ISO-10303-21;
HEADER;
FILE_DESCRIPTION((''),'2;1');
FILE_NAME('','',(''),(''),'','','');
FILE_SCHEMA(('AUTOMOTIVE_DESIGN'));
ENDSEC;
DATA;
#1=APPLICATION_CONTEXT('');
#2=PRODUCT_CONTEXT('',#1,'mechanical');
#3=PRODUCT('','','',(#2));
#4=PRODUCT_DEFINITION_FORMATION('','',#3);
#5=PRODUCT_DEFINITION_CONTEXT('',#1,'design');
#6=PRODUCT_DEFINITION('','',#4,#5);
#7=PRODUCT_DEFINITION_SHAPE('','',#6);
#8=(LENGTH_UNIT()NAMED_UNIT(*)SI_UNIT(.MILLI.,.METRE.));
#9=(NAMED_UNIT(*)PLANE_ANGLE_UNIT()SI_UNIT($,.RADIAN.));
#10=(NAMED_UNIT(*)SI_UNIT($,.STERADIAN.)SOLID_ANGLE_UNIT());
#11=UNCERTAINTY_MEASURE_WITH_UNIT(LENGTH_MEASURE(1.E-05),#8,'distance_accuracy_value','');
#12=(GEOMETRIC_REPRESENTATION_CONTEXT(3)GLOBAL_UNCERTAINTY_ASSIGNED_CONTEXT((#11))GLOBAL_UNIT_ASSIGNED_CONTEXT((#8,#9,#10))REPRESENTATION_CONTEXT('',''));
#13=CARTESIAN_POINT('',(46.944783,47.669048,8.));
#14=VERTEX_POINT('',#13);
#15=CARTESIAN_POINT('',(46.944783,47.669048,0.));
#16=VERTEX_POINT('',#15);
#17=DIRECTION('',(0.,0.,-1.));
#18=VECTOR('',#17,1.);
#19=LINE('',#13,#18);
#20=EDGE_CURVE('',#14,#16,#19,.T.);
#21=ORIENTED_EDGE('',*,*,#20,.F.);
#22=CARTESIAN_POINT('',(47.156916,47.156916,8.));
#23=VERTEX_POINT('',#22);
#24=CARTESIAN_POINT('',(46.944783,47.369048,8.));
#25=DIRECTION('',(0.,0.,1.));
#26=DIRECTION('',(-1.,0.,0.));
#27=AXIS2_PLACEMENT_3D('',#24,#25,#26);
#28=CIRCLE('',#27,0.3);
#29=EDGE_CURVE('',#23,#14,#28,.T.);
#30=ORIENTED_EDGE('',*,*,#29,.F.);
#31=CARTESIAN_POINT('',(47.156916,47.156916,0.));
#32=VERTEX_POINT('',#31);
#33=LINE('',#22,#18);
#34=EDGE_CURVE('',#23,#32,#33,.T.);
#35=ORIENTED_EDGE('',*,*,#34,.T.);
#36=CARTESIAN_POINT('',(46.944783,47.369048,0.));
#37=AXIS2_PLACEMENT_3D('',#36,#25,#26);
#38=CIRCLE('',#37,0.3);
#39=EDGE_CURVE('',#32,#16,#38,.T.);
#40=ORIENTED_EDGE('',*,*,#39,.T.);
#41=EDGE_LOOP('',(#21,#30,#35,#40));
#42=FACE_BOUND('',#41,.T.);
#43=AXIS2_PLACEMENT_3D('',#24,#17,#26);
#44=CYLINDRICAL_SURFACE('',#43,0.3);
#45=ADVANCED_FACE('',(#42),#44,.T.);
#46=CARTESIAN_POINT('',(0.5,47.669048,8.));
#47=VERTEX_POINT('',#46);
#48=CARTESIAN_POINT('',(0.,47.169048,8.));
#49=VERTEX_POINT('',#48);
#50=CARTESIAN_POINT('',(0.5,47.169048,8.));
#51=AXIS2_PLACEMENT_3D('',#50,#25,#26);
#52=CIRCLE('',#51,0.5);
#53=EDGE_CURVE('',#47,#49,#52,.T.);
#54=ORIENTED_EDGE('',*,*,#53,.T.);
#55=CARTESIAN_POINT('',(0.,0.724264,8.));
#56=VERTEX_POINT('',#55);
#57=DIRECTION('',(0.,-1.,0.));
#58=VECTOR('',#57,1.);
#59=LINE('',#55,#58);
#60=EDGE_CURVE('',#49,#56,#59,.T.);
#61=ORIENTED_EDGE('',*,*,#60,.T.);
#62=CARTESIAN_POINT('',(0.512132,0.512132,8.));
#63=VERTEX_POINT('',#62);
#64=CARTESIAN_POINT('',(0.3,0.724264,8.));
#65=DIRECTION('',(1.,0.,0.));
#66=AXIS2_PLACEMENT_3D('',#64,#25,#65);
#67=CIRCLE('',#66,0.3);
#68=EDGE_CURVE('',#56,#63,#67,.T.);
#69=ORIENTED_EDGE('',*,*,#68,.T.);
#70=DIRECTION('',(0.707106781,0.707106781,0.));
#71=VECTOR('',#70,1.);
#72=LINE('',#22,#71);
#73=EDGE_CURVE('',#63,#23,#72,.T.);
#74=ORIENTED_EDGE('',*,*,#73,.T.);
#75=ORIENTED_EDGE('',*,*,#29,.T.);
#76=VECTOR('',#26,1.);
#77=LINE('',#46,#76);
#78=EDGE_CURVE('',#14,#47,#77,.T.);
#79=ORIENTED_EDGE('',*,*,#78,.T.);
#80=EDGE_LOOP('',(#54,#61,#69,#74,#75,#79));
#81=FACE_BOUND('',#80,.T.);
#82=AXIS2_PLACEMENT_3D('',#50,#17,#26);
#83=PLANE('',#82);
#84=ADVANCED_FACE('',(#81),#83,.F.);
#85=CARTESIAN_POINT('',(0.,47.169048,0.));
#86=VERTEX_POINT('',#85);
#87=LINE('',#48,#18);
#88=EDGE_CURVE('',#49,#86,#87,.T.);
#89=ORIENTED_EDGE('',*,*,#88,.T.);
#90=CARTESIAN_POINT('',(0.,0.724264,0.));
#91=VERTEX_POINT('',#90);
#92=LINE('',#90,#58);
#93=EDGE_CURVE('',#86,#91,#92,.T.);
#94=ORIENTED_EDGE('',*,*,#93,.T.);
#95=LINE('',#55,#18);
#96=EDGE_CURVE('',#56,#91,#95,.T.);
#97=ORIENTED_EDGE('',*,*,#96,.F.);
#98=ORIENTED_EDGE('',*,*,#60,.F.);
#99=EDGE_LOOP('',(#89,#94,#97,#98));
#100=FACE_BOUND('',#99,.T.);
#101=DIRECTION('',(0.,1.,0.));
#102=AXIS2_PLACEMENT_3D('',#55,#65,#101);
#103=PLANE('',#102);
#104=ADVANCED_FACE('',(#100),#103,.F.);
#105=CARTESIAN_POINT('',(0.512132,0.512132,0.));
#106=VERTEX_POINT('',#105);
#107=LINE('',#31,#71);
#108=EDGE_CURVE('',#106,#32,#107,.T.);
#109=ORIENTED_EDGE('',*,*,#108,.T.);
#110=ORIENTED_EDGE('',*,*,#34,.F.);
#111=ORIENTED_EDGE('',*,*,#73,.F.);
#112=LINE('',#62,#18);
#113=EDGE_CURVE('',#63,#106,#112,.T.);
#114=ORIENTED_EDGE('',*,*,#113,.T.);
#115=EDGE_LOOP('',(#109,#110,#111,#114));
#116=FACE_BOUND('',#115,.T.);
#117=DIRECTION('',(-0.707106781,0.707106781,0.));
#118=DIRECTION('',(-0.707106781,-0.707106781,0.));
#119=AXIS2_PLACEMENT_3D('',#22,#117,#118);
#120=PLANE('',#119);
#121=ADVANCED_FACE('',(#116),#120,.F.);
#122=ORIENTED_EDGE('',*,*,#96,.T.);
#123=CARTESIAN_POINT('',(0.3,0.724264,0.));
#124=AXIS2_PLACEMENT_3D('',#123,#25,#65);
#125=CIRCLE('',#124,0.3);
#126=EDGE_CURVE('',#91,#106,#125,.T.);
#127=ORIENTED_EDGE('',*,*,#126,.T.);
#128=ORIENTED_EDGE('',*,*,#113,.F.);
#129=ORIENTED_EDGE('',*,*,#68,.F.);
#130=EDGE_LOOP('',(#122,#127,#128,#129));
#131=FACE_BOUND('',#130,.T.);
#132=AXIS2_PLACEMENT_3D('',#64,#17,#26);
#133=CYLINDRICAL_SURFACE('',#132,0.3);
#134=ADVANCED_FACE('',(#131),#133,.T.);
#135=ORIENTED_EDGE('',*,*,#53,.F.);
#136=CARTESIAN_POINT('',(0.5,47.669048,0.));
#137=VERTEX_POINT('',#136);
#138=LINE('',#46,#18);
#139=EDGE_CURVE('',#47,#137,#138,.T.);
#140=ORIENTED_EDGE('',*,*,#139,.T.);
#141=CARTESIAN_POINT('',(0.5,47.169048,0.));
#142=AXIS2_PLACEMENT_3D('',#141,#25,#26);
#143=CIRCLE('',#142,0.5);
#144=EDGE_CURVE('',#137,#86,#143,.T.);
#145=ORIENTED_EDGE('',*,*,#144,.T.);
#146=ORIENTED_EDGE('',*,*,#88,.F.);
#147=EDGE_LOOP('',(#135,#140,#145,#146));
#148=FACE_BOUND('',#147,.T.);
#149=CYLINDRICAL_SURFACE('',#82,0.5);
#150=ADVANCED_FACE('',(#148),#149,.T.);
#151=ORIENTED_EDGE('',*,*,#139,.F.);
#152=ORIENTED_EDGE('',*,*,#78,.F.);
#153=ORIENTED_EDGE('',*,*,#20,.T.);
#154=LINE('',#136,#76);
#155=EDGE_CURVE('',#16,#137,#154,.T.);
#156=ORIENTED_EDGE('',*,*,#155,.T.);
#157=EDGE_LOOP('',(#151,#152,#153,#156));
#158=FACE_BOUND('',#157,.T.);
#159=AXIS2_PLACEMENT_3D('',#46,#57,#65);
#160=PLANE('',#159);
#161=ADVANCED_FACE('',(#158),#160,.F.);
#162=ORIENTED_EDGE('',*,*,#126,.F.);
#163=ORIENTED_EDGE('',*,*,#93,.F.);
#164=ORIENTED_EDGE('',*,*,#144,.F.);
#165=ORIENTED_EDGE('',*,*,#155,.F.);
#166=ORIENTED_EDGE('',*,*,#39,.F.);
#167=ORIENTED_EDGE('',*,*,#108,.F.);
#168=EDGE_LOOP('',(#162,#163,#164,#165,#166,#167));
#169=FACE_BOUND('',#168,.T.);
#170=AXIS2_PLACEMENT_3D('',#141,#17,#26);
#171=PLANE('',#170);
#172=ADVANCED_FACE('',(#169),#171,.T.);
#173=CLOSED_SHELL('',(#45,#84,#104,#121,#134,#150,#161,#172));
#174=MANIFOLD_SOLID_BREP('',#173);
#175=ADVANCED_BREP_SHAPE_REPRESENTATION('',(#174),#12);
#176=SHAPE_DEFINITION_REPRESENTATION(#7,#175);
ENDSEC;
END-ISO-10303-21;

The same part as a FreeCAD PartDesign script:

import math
import FreeCAD as App
import Part
import Sketcher
from FreeCAD import Vector
Q = App.Units.Quantity

doc = App.newDocument("Part")
body = doc.addObject("PartDesign::Body", "Body")

# Sketch on XY plane
sketch1 = doc.addObject("Sketcher::SketchObject", "Sketch")
body.addObject(sketch1)
sketch1.AttachmentSupport = (doc.XY_Plane, [""])
sketch1.MapMode = "FlatFace"
sketch1.addGeometry(Part.LineSegment(Vector(0, 47.17, 0), Vector(0, 0.72, 0)), False)
sketch1.addGeometry(Part.ArcOfCircle(Part.Circle(Vector(0.3, 0.72, 0), Vector(0, 0, 1), 0.3), math.radians(180), math.radians(315)), False)
sketch1.addGeometry(Part.LineSegment(Vector(0.51, 0.51, 0), Vector(47.16, 47.16, 0)), False)
sketch1.addGeometry(Part.ArcOfCircle(Part.Circle(Vector(46.94, 47.37, 0), Vector(0, 0, 1), 0.3), math.radians(-45), math.radians(90)), False)
sketch1.addGeometry(Part.LineSegment(Vector(46.94, 47.67, 0), Vector(0.5, 47.67, 0)), False)
sketch1.addGeometry(Part.ArcOfCircle(Part.Circle(Vector(0.5, 47.17, 0), Vector(0, 0, 1), 0.5), math.radians(90), math.radians(180)), False)
sketch1.addConstraint(Sketcher.Constraint("Tangent", 0, 2, 1, 1))
sketch1.addConstraint(Sketcher.Constraint("Tangent", 1, 2, 2, 1))
sketch1.addConstraint(Sketcher.Constraint("Tangent", 2, 2, 3, 1))
sketch1.addConstraint(Sketcher.Constraint("Tangent", 3, 2, 4, 1))
sketch1.addConstraint(Sketcher.Constraint("Tangent", 4, 2, 5, 1))
sketch1.addConstraint(Sketcher.Constraint("Tangent", 5, 2, 0, 1))
sketch1.addConstraint(Sketcher.Constraint("Vertical", 0))
sketch1.addConstraint(Sketcher.Constraint("Horizontal", 4))
sketch1.addConstraint(Sketcher.Constraint("Equal", 1, 3))
sketch1.addConstraint(Sketcher.Constraint("PointOnObject", 0, 2, -2))
sketch1.addConstraint(Sketcher.Constraint("Equal", 4, 0))
sketch1.addConstraint(Sketcher.Constraint("Radius", 1, Q("0.3 mm")))
sketch1.addConstraint(Sketcher.Constraint("Radius", 5, Q("0.5 mm")))
sketch1.addConstraint(Sketcher.Constraint("DistanceX", 4, 2, 4, 1, Q("46.444783 mm")))
sketch1.addConstraint(Sketcher.Constraint("DistanceY", -1, 1, 1, 3, Q("0.724264 mm")))
pad1 = doc.addObject("PartDesign::Pad", "Pad")
body.addObject(pad1)
pad1.Profile = sketch1
pad1.Length = 8

doc.recompute()
